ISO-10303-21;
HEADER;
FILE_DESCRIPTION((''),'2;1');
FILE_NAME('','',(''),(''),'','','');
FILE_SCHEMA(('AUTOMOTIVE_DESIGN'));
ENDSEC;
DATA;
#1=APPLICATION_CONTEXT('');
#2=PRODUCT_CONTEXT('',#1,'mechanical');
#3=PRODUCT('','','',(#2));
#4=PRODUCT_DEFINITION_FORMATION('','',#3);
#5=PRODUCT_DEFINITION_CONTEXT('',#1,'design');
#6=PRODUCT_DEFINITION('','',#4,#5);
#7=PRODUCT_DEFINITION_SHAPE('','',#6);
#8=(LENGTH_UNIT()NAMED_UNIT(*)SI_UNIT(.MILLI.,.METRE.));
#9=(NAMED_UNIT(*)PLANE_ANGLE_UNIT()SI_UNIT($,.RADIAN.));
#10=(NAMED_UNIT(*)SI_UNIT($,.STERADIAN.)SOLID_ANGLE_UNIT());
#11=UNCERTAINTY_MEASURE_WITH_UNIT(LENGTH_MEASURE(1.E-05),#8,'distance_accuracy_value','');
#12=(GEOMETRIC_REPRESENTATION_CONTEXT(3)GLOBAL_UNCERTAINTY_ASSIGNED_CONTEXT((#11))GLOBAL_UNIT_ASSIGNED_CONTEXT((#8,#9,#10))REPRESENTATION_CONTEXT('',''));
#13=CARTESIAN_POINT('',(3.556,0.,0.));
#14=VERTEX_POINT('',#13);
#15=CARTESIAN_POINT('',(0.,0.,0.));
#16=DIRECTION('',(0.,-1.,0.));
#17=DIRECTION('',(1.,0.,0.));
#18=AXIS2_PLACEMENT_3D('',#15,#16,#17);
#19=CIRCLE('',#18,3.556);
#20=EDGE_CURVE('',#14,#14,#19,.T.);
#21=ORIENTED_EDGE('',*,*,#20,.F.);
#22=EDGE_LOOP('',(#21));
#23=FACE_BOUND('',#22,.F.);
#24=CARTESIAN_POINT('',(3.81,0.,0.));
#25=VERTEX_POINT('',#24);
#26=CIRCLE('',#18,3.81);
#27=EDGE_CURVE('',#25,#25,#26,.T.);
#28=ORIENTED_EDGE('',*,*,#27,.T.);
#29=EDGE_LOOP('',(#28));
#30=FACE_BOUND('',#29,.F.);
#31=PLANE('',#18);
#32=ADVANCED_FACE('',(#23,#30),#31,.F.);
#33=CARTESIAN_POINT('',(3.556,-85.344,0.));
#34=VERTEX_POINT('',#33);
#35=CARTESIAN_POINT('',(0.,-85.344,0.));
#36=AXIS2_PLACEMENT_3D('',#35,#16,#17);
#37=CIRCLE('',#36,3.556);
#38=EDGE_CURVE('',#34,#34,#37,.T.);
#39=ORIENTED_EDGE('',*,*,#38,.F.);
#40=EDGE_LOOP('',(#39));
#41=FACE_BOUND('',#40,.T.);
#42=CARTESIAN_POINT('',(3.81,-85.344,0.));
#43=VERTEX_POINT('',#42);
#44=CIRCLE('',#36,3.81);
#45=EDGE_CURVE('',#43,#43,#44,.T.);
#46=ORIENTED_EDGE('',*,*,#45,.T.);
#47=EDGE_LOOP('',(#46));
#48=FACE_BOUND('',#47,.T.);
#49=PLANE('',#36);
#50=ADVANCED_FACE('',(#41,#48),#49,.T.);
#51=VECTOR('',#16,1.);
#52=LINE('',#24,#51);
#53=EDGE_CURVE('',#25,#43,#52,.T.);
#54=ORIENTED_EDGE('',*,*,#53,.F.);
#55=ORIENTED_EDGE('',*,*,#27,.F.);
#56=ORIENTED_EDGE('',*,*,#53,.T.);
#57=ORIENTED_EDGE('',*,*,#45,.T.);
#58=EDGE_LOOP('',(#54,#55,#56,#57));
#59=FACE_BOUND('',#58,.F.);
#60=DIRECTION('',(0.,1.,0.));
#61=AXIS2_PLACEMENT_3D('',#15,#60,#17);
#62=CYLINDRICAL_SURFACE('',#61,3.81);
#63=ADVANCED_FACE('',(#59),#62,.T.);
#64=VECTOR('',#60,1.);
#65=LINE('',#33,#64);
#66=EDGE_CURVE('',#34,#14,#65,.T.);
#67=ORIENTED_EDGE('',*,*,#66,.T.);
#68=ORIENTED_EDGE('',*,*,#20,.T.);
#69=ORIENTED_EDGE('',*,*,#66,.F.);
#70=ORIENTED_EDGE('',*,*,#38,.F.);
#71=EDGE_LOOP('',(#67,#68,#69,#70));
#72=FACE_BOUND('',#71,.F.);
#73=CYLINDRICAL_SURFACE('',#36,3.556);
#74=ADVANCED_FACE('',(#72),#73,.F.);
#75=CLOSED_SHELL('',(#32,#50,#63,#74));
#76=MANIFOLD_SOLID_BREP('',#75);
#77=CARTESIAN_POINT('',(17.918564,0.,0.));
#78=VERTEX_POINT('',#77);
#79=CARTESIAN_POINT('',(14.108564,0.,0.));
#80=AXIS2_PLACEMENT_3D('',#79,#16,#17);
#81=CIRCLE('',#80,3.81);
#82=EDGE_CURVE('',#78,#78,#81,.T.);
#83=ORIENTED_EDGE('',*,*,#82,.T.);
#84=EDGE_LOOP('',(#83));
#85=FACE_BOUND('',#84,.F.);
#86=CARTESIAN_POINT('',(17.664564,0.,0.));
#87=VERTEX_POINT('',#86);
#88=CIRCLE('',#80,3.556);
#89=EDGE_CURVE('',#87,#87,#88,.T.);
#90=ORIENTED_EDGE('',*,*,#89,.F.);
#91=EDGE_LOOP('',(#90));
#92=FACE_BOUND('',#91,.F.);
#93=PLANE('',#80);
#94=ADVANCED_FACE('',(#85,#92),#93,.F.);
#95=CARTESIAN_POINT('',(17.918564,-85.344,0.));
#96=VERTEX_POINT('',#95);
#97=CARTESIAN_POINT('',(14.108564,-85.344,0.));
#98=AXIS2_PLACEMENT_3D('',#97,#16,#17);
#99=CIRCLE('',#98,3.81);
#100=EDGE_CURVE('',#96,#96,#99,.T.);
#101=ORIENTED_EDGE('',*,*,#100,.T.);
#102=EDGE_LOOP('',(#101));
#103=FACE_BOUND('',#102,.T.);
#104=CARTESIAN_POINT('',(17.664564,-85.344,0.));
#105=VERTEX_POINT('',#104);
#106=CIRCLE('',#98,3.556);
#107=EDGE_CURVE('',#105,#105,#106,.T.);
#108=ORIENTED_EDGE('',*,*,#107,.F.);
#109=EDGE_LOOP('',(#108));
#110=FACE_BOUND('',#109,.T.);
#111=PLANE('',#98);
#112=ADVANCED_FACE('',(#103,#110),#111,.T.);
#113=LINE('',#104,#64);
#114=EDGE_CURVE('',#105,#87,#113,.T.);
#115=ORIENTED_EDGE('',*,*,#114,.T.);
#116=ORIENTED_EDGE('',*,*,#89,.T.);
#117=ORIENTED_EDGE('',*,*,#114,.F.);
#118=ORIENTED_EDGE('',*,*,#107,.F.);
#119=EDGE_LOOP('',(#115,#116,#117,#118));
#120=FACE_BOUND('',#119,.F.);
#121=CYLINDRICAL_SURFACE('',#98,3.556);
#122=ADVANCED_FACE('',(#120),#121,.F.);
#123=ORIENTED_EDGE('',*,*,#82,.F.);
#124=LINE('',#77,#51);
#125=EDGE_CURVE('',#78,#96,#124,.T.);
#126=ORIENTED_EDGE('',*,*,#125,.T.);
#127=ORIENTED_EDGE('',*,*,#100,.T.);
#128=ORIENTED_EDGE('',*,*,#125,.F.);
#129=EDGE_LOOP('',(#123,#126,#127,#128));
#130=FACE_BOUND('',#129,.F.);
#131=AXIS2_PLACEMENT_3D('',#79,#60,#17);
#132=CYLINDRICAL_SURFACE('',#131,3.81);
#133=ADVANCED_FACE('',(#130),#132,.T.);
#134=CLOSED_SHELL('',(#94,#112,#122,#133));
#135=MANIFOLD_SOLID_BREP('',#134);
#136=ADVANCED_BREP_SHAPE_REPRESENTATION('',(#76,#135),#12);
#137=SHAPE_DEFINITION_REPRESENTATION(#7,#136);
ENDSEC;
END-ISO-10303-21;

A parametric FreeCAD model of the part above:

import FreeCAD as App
import Part
import Sketcher

V = App.Vector
Q = App.Units.Quantity

doc = App.newDocument("Part")
params = doc.addObject("Spreadsheet::Sheet", "Params")
for row, (alias, value) in enumerate([
    ("sketch1_diameter", "0.3 in"),
    ("pad1_length", "3.36 in"),
    ("sketch2_diameter", "0.28 in"),
    ("pocket1_length", "3.98 in"),
    ("sketch3_diameter", "0.28 in"),
    ("pocket2_length", "3.95 in"),
], start=1):
    params.set(f"A{row}", alias)
    params.set(f"B{row}", "=" + value)
    params.setAlias(f"B{row}", alias)

body = doc.addObject("PartDesign::Body", "Body")
body.AllowCompound = True

# Sketch on XZ plane
sketch1 = doc.addObject("Sketcher::SketchObject", "Sketch")
body.addObject(sketch1)
sketch1.AttachmentSupport = (doc.XZ_Plane, [""])
sketch1.MapMode = "FlatFace"
sketch1.addGeometry([
    Part.Circle(V(0, 0, 0), V(0, 0, 1), 3.8),
    Part.Circle(V(14.1, 0, 0), V(0, 0, 1), 3.8),
], False)
sketch1.addConstraint([
    Sketcher.Constraint("Coincident", 0, 3, -1, 1),
    Sketcher.Constraint("Equal", 0, 1),
    Sketcher.Constraint("PointOnObject", 1, 3, -1),
    Sketcher.Constraint("Diameter", 0, Q("0.3 in")),
    Sketcher.Constraint("DistanceX", -1, 1, 1, 3, 14.108564),
])
sketch1.setExpression("Constraints[3]", "Params.sketch1_diameter")
pad1 = doc.addObject("PartDesign::Pad", "Pad")
body.addObject(pad1)
pad1.Profile = sketch1
pad1.setExpression("Length", "Params.pad1_length")

# Sketch on XZ plane
sketch2 = doc.addObject("Sketcher::SketchObject", "Sketch001")
body.addObject(sketch2)
sketch2.AttachmentSupport = (doc.XZ_Plane, [""])
sketch2.MapMode = "FlatFace"
sketch2.AttachmentOffset = App.Placement(V(0, 0, 3.36 * 25.4), App.Rotation())
sketch2.addGeometry(Part.Circle(V(0, 0, 0), V(0, 0, 1), 3.6), False)
sketch2.addConstraint([
    Sketcher.Constraint("Coincident", 0, 3, -1, 1),
    Sketcher.Constraint("Diameter", 0, Q("0.28 in")),
])
sketch2.setExpression("Constraints[1]", "Params.sketch2_diameter")
pocket1 = doc.addObject("PartDesign::Pocket", "Pocket")
body.addObject(pocket1)
pocket1.Profile = sketch2
pocket1.setExpression("Length", "Params.pocket1_length")

# Sketch on XZ plane
sketch3 = doc.addObject("Sketcher::SketchObject", "Sketch002")
body.addObject(sketch3)
sketch3.AttachmentSupport = (doc.XZ_Plane, [""])
sketch3.MapMode = "FlatFace"
sketch3.AttachmentOffset = App.Placement(V(0, 0, 3.36 * 25.4), App.Rotation())
sketch3.addGeometry(Part.Circle(V(14.1, 0, 0), V(0, 0, 1), 3.6), False)
sketch3.addConstraint([
    Sketcher.Constraint("PointOnObject", 0, 3, -1),
    Sketcher.Constraint("Diameter", 0, Q("0.28 in")),
    Sketcher.Constraint("DistanceX", -1, 1, 0, 3, 14.108564),
])
sketch3.setExpression("Constraints[1]", "Params.sketch3_diameter")
pocket2 = doc.addObject("PartDesign::Pocket", "Pocket001")
body.addObject(pocket2)
pocket2.Profile = sketch3
pocket2.setExpression("Length", "Params.pocket2_length")

doc.recompute()
